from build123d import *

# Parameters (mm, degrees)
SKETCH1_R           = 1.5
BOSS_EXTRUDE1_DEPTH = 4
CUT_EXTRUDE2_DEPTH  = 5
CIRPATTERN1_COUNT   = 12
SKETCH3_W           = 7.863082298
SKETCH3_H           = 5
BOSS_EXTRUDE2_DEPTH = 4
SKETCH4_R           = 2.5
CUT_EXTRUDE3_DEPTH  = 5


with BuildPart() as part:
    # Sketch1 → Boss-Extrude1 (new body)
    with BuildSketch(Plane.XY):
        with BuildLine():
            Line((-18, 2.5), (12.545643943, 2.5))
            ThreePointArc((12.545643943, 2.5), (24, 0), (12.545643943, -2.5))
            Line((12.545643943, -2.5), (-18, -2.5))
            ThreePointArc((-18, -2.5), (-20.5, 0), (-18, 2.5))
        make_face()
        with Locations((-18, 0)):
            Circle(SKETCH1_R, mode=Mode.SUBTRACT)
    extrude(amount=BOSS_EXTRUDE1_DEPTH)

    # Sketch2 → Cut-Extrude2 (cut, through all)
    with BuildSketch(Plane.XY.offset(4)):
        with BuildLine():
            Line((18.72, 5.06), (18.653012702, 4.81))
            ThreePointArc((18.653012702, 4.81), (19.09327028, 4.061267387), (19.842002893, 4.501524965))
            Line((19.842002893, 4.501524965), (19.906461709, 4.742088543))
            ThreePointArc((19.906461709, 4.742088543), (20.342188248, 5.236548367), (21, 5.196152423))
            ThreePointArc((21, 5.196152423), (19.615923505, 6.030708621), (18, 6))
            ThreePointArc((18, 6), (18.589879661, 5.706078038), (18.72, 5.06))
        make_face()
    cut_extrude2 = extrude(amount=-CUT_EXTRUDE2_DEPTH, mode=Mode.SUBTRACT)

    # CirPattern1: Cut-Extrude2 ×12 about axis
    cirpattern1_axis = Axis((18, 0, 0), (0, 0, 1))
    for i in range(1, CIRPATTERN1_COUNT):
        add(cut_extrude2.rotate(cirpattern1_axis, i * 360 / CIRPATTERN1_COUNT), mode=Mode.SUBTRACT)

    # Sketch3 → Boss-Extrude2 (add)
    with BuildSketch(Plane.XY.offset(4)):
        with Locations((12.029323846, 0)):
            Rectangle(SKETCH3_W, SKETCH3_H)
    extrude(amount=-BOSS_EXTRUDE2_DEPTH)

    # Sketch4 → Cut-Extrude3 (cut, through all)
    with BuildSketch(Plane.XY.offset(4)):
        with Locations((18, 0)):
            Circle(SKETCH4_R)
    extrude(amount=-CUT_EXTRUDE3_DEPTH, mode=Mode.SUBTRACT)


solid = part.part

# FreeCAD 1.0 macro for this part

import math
import FreeCAD as App
import Part
import Sketcher

V = App.Vector
Q = App.Units.Quantity


def add_polygon(sketch, points):
    """Adds a closed chain of lines whose ends are joined by coincident constraints."""
    first, n = sketch.GeometryCount, len(points)
    for a, b in zip(points, points[1:] + points[:1]):
        sketch.addGeometry(Part.LineSegment(App.Vector(*a, 0), App.Vector(*b, 0)), False)
    for i in range(n):
        sketch.addConstraint(Sketcher.Constraint("Coincident", first + i, 2, first + (i + 1) % n, 1))

doc = App.newDocument("Part")
body = doc.addObject("PartDesign::Body", "Body")
body.AllowCompound = True

sketch1 = doc.addObject("Sketcher::SketchObject", "Sketch")
body.addObject(sketch1)
sketch1.AttachmentSupport = (doc.XY_Plane, [""])
sketch1.MapMode = "FlatFace"
sketch1.addGeometry(Part.LineSegment(V(12.545644, 2.5, 0), V(-18, 2.5, 0)), False)
sketch1.addGeometry(Part.ArcOfCircle(Part.Circle(V(-18, 0, 0), V(0, 0, 1), 2.5), math.radians(90), math.radians(270)), False)
sketch1.addGeometry(Part.LineSegment(V(-18, -2.5, 0), V(12.545644, -2.5, 0)), False)
sketch1.addGeometry(Part.ArcOfCircle(Part.Circle(V(18, 0, 0), V(0, 0, 1), 6), math.radians(-155.375682), math.radians(155.375682)), False)
sketch1.addGeometry(Part.Circle(V(-18, 0, 0), V(0, 0, 1), 1.5), False)
sketch1.addConstraint(Sketcher.Constraint("Tangent", 0, 2, 1, 1))
sketch1.addConstraint(Sketcher.Constraint("Tangent", 1, 2, 2, 1))
sketch1.addConstraint(Sketcher.Constraint("Coincident", 2, 2, 3, 1))
sketch1.addConstraint(Sketcher.Constraint("Coincident", 3, 2, 0, 1))
sketch1.addConstraint(Sketcher.Constraint("Horizontal", 0))
sketch1.addConstraint(Sketcher.Constraint("Horizontal", 2))
sketch1.addConstraint(Sketcher.Constraint("Coincident", 4, 3, 1, 3))
sketch1.addConstraint(Sketcher.Constraint("Symmetric", 1, 3, 3, 3, -1, 1))
sketch1.addConstraint(Sketcher.Constraint("PointOnObject", 1, 3, -1))
sketch1.addConstraint(Sketcher.Constraint("Diameter", 4, 3.0))
sketch1.addConstraint(Sketcher.Constraint("Radius", 3, 6.0))
sketch1.addConstraint(Sketcher.Constraint("Radius", 1, 2.5))
sketch1.addConstraint(Sketcher.Constraint("DistanceX", 1, 3, -1, 1, 18.0))
pad1 = doc.addObject("PartDesign::Pad", "Pad")
body.addObject(pad1)
pad1.Profile = sketch1
pad1.Length = 4

sketch2 = doc.addObject("Sketcher::SketchObject", "Sketch001")
body.addObject(sketch2)
sketch2.AttachmentSupport = (doc.XY_Plane, [""])
sketch2.MapMode = "FlatFace"
sketch2.AttachmentOffset = App.Placement(V(0, 0, 4), App.Rotation())
sketch2.addGeometry(Part.LineSegment(V(18.72, 5.06, 0), V(18.653013, 4.81, 0)), False)
sketch2.addGeometry(Part.ArcOfCircle(Part.Circle(V(19.247508, 4.655762, 0), V(0, 0, 1), 0.614177), math.radians(165.455687), math.radians(345.455688)), False)
sketch2.addGeometry(Part.LineSegment(V(19.842003, 4.501525, 0), V(19.906462, 4.742089, 0)), False)
sketch2.addGeometry(Part.ArcOfCircle(Part.Circle(V(20.629798, 4.543887, 0), V(0, 0, 1), 0.75), math.radians(60.422385), math.radians(164.676459)), False)
sketch2.addGeometry(Part.ArcOfCircle(Part.Circle(V(18.861197, 3.214032, 0), V(0, 0, 1), 2.916038), math.radians(42.822592), math.radians(107.177408)), False)
sketch2.addGeometry(Part.ArcOfCircle(Part.Circle(V(17.994471, 5.25002, 0), V(0, 0, 1), 0.75), math.radians(-14.676459), math.radians(89.577616)), False)
sketch2.addConstraint(Sketcher.Constraint("Coincident", 0, 2, 1, 1))
sketch2.addConstraint(Sketcher.Constraint("Coincident", 1, 2, 2, 1))
sketch2.addConstraint(Sketcher.Constraint("Coincident", 2, 2, 3, 2))
sketch2.addConstraint(Sketcher.Constraint("Coincident", 3, 1, 4, 1))
sketch2.addConstraint(Sketcher.Constraint("Coincident", 4, 2, 5, 2))
sketch2.addConstraint(Sketcher.Constraint("Coincident", 5, 1, 0, 1))
sketch2.addConstraint(Sketcher.Constraint("Equal", 3, 5))
sketch2.addConstraint(Sketcher.Constraint("Parallel", 0, 2))
sketch2.addConstraint(Sketcher.Constraint("Angle", 0, Q("-105 deg")))
sketch2.addConstraint(Sketcher.Constraint("Radius", 3, 0.75))
sketch2.addConstraint(Sketcher.Constraint("DistanceX", -1, 1, 3, 1, 21.0))
sketch2.addConstraint(Sketcher.Constraint("DistanceX", -1, 1, 4, 2, 18.0))
sketch2.addConstraint(Sketcher.Constraint("DistanceY", -1, 1, 4, 2, 6.0))
sketch2.addConstraint(Sketcher.Constraint("DistanceY", -1, 1, 0, 2, 4.81))
sketch2.addConstraint(Sketcher.Constraint("DistanceX", -1, 1, 5, 1, 18.72))
sketch2.addConstraint(Sketcher.Constraint("DistanceY", -1, 1, 5, 1, 5.06))
sketch2.addConstraint(Sketcher.Constraint("Radius", 1, 0.614177))
sketch2.addConstraint(Sketcher.Constraint("Radius", 4, 2.916038))
sketch2.addConstraint(Sketcher.Constraint("DistanceX", -1, 1, 3, 3, 20.629798))
sketch2.addConstraint(Sketcher.Constraint("DistanceX", 4, 3, 3, 3, 1.768601))
sketch2.addConstraint(Sketcher.Constraint("Distance", 2, 0.24905))
sketch2.addConstraint(Sketcher.Constraint("DistanceX", 1, 3, 3, 3, 1.382291))
pocket1 = doc.addObject("PartDesign::Pocket", "Pocket")
body.addObject(pocket1)
pocket1.Profile = sketch2
pocket1.Type = "ThroughAll"
doc.recompute()

datumline = doc.addObject("PartDesign::Line", "DatumLine")
body.addObject(datumline)
datumline.Placement = App.Placement(V(18, 0, 0), App.Rotation(V(0, 0, 1), V(0, 0, 1)))
polarpattern = doc.addObject("PartDesign::PolarPattern", "PolarPattern")
body.addObject(polarpattern)
polarpattern.Originals = [pocket1]
polarpattern.Axis = (datumline, [""])
polarpattern.Angle = 360
polarpattern.Occurrences = 12
body.Tip = polarpattern

sketch3 = doc.addObject("Sketcher::SketchObject", "Sketch002")
body.addObject(sketch3)
sketch3.AttachmentSupport = (doc.XY_Plane, [""])
sketch3.MapMode = "FlatFace"
sketch3.AttachmentOffset = App.Placement(V(0, 0, 4), App.Rotation())
add_polygon(sketch3, [(8.097783, 2.5), (8.097783, -2.5), (15.960865, -2.5), (15.960865, 2.5)])
sketch3.addConstraint(Sketcher.Constraint("Vertical", 0))
sketch3.addConstraint(Sketcher.Constraint("Horizontal", 1))
sketch3.addConstraint(Sketcher.Constraint("Vertical", 2))
sketch3.addConstraint(Sketcher.Constraint("Horizontal", 3))
sketch3.addConstraint(Sketcher.Constraint("DistanceY", 0, 2, 0, 1, 5.0))
sketch3.addConstraint(Sketcher.Constraint("DistanceY", 0, 2, -1, 1, 2.5))
sketch3.addConstraint(Sketcher.Constraint("DistanceX", 1, 1, 1, 2, 7.863082))
sketch3.addConstraint(Sketcher.Constraint("DistanceX", -1, 1, 0, 2, 8.097783))
pad2 = doc.addObject("PartDesign::Pad", "Pad001")
body.addObject(pad2)
pad2.Profile = sketch3
pad2.Length = 4
pad2.Reversed = True

sketch4 = doc.addObject("Sketcher::SketchObject", "Sketch003")
body.addObject(sketch4)
sketch4.AttachmentSupport = (doc.XY_Plane, [""])
sketch4.MapMode = "FlatFace"
sketch4.AttachmentOffset = App.Placement(V(0, 0, 4), App.Rotation())
sketch4.addGeometry(Part.Circle(V(18, 0, 0), V(0, 0, 1), 2.5), False)
sketch4.addConstraint(Sketcher.Constraint("PointOnObject", 0, 3, -1))
sketch4.addConstraint(Sketcher.Constraint("Diameter", 0, 5.0))
sketch4.addConstraint(Sketcher.Constraint("DistanceX", -1, 1, 0, 3, 18.0))
pocket2 = doc.addObject("PartDesign::Pocket", "Pocket001")
body.addObject(pocket2)
pocket2.Profile = sketch4
pocket2.Type = "ThroughAll"

doc.recompute()
